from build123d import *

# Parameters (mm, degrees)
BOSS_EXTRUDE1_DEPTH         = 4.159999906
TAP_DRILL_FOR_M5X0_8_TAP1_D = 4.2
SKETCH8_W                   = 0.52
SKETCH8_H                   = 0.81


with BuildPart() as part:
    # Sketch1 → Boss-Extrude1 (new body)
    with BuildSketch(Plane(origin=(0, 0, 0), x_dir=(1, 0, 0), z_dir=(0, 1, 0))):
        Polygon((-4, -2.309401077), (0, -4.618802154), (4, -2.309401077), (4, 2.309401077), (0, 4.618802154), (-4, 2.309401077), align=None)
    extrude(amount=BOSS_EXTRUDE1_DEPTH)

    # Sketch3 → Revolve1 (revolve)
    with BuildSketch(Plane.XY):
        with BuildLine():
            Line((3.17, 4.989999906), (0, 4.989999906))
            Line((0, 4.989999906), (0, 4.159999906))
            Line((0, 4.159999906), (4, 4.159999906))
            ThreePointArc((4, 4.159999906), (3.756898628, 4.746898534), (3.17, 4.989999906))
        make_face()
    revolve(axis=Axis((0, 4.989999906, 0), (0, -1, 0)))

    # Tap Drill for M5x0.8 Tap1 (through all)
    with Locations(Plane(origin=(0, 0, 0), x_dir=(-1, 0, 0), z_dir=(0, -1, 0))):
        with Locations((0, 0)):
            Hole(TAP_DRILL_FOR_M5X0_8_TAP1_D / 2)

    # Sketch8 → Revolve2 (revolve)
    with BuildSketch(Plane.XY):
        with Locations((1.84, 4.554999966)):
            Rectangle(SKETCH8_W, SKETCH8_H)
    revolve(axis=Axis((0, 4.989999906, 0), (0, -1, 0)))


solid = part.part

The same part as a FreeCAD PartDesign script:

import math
import FreeCAD as App
import Part
import Sketcher

V = App.Vector
Q = App.Units.Quantity


def add_polygon(sketch, points):
    """Adds a closed chain of lines whose ends are joined by coincident constraints."""
    first, n = sketch.GeometryCount, len(points)
    for a, b in zip(points, points[1:] + points[:1]):
        sketch.addGeometry(Part.LineSegment(App.Vector(*a, 0), App.Vector(*b, 0)), False)
    for i in range(n):
        sketch.addConstraint(Sketcher.Constraint("Coincident", first + i, 2, first + (i + 1) % n, 1))

doc = App.newDocument("Part")
body = doc.addObject("PartDesign::Body", "Body")

sketch1 = doc.addObject("Sketcher::SketchObject", "Sketch")
body.addObject(sketch1)
sketch1.AttachmentSupport = (doc.XZ_Plane, [""])
sketch1.MapMode = "FlatFace"
add_polygon(sketch1, [(-4, 2.3), (0, 4.6), (4, 2.3), (4, -2.3), (0, -4.6), (-4, -2.3)])
sketch1.addConstraint(Sketcher.Constraint("Vertical", 2))
sketch1.addConstraint(Sketcher.Constraint("Vertical", 5))
sketch1.addConstraint(Sketcher.Constraint("Symmetric", 0, 2, 3, 2, -1, 1))
sketch1.addConstraint(Sketcher.Constraint("Symmetric", 1, 2, 4, 2, -1, 1))
sketch1.addConstraint(Sketcher.Constraint("PointOnObject", 0, 2, -2))
sketch1.addConstraint(Sketcher.Constraint("Parallel", 0, 3))
sketch1.addConstraint(Sketcher.Constraint("Horizontal", 2, 2, 4, 2))
sketch1.addConstraint(Sketcher.Constraint("Angle", 0, Q("30 deg")))
sketch1.addConstraint(Sketcher.Constraint("DistanceX", -1, 1, 1, 2, 4.0))
sketch1.addConstraint(Sketcher.Constraint("DistanceY", -1, 1, 1, 2, 2.309401))
pad1 = doc.addObject("PartDesign::Pad", "Pad")
body.addObject(pad1)
pad1.Profile = sketch1
pad1.Length = 4.16
pad1.Reversed = True

sketch2 = doc.addObject("Sketcher::SketchObject", "Sketch001")
body.addObject(sketch2)
sketch2.AttachmentSupport = (doc.XY_Plane, [""])
sketch2.MapMode = "FlatFace"
sketch2.addGeometry(Part.LineSegment(V(3.2, 5, 0), V(0, 5, 0)), False)
sketch2.addGeometry(Part.LineSegment(V(0, 5, 0), V(0, 4.2, 0)), False)
sketch2.addGeometry(Part.LineSegment(V(0, 4.2, 0), V(4, 4.2, 0)), False)
sketch2.addGeometry(Part.ArcOfCircle(Part.Circle(V(3.2, 4.2, 0), V(0, 0, 1), 0.8), math.radians(0), math.radians(90)), False)
sketch2.addConstraint(Sketcher.Constraint("Coincident", 0, 2, 1, 1))
sketch2.addConstraint(Sketcher.Constraint("Coincident", 1, 2, 2, 1))
sketch2.addConstraint(Sketcher.Constraint("Coincident", 2, 2, 3, 1))
sketch2.addConstraint(Sketcher.Constraint("Tangent", 3, 2, 0, 1))
sketch2.addConstraint(Sketcher.Constraint("Horizontal", 0))
sketch2.addConstraint(Sketcher.Constraint("Vertical", 1))
sketch2.addConstraint(Sketcher.Constraint("Horizontal", 2))
sketch2.addConstraint(Sketcher.Constraint("PointOnObject", 0, 2, -2))
sketch2.addConstraint(Sketcher.Constraint("Horizontal", 3, 3, 1, 2))
sketch2.addConstraint(Sketcher.Constraint("DistanceX", 2, 1, 2, 2, 4.0))
sketch2.addConstraint(Sketcher.Constraint("Radius", 3, 0.83))
sketch2.addConstraint(Sketcher.Constraint("DistanceY", -1, 1, 3, 3, 4.16))
revolution = doc.addObject("PartDesign::Revolution", "Revolution")
body.addObject(revolution)
revolution.Profile = sketch2
revolution.ReferenceAxis = (sketch2, ["V_Axis"])
revolution.Angle = 360

sketch3 = doc.addObject("Sketcher::SketchObject", "Sketch002")
body.addObject(sketch3)
sketch3.AttachmentSupport = (doc.XZ_Plane, [""])
sketch3.MapMode = "FlatFace"
sketch3.addGeometry(Part.Circle(V(0, 0, 0), V(0, 0, 1), 2.1), False)
sketch3.addConstraint(Sketcher.Constraint("Coincident", 0, 3, -1, 1))
sketch3.addConstraint(Sketcher.Constraint("Diameter", 0, 4.2))
doc.recompute()
hole = doc.addObject("PartDesign::Hole", "Hole")
body.addObject(hole)
hole.Profile = sketch3
hole.ThreadType = "None"
hole.Diameter = 4.2
hole.DepthType = "ThroughAll"

sketch4 = doc.addObject("Sketcher::SketchObject", "Sketch003")
body.addObject(sketch4)
sketch4.AttachmentSupport = (doc.XY_Plane, [""])
sketch4.MapMode = "FlatFace"
add_polygon(sketch4, [(1.6, 5), (1.6, 4.1), (2.1, 4.1), (2.1, 5)])
sketch4.addConstraint(Sketcher.Constraint("Vertical", 0))
sketch4.addConstraint(Sketcher.Constraint("Horizontal", 1))
sketch4.addConstraint(Sketcher.Constraint("Vertical", 2))
sketch4.addConstraint(Sketcher.Constraint("Horizontal", 3))
sketch4.addConstraint(Sketcher.Constraint("DistanceX", 1, 1, 1, 2, 0.52))
sketch4.addConstraint(Sketcher.Constraint("DistanceY", 0, 2, 0, 1, 0.81))
sketch4.addConstraint(Sketcher.Constraint("DistanceX", -1, 1, 1, 2, 2.1))
sketch4.addConstraint(Sketcher.Constraint("DistanceY", -1, 1, 0, 2, 4.15))
revolution2 = doc.addObject("PartDesign::Revolution", "Revolution001")
body.addObject(revolution2)
revolution2.Profile = sketch4
revolution2.ReferenceAxis = (sketch4, ["V_Axis"])
revolution2.Angle = 360

doc.recompute()
